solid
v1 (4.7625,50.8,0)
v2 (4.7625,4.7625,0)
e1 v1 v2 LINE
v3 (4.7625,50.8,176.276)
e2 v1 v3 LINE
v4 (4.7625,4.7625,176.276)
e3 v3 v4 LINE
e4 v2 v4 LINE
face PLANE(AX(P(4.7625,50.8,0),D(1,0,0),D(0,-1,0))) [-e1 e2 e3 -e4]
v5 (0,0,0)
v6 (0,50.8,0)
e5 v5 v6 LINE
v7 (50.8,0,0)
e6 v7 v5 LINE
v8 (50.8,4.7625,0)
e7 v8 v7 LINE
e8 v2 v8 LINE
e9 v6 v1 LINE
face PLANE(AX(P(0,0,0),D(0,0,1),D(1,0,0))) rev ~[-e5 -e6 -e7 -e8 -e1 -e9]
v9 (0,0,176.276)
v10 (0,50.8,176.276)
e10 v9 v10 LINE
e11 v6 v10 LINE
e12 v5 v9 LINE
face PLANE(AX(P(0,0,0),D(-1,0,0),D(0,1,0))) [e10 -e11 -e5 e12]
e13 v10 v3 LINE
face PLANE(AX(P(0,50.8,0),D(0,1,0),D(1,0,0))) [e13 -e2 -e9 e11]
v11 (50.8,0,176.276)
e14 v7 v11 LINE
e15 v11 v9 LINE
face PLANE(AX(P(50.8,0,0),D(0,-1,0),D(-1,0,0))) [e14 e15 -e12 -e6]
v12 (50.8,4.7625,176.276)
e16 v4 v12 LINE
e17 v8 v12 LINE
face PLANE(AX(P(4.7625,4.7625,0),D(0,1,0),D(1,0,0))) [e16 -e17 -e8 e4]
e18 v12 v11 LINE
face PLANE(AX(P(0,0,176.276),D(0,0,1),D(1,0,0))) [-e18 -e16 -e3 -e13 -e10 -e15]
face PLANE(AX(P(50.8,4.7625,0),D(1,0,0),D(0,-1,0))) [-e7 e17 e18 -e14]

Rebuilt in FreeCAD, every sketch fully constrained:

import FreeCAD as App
import Part
import Sketcher
from FreeCAD import Vector
Q = App.Units.Quantity

doc = App.newDocument("Part")
body = doc.addObject("PartDesign::Body", "Body")

# Sketch on XY plane
sketch1 = body.newObject("Sketcher::SketchObject", "Sketch")
sketch1.AttachmentSupport = (doc.getObject("XY_Plane"), [""])
sketch1.MapMode = "FlatFace"
sketch1.addGeometry([
    Part.LineSegment(Vector(0, 50.8, 0), Vector(0, 0, 0)),  # 0
    Part.LineSegment(Vector(0, 0, 0), Vector(50.8, 0, 0)),  # 1
    Part.LineSegment(Vector(50.8, 0, 0), Vector(50.8, 4.8, 0)),  # 2
    Part.LineSegment(Vector(50.8, 4.8, 0), Vector(4.8, 4.8, 0)),  # 3
    Part.LineSegment(Vector(4.8, 4.8, 0), Vector(4.8, 50.8, 0)),  # 4
    Part.LineSegment(Vector(4.8, 50.8, 0), Vector(0, 50.8, 0)),  # 5
], False)
sketch1.addConstraint([
    Sketcher.Constraint("Coincident", 0, 2, 1, 1),
    Sketcher.Constraint("Coincident", 1, 2, 2, 1),
    Sketcher.Constraint("Coincident", 2, 2, 3, 1),
    Sketcher.Constraint("Coincident", 3, 2, 4, 1),
    Sketcher.Constraint("Coincident", 4, 2, 5, 1),
    Sketcher.Constraint("Coincident", 5, 2, 0, 1),
    Sketcher.Constraint("Vertical", 0),
    Sketcher.Constraint("Horizontal", 1),
    Sketcher.Constraint("Vertical", 2),
    Sketcher.Constraint("Horizontal", 3),
    Sketcher.Constraint("Vertical", 4),
    Sketcher.Constraint("Horizontal", 5),
    Sketcher.Constraint("Coincident", 0, 2, -1, 1),
    Sketcher.Constraint("Equal", 1, 0),
    Sketcher.Constraint("Equal", 5, 2),
    Sketcher.Constraint("DistanceX", 1, 1, 1, 2, Q("2 in")),
    Sketcher.Constraint("DistanceX", 5, 2, 5, 1, Q("0.1875 in")),
])
pad1 = body.newObject("PartDesign::Pad", "Pad")
pad1.Profile = sketch1
pad1.Length = Q("6.94 in")

doc.recompute()
